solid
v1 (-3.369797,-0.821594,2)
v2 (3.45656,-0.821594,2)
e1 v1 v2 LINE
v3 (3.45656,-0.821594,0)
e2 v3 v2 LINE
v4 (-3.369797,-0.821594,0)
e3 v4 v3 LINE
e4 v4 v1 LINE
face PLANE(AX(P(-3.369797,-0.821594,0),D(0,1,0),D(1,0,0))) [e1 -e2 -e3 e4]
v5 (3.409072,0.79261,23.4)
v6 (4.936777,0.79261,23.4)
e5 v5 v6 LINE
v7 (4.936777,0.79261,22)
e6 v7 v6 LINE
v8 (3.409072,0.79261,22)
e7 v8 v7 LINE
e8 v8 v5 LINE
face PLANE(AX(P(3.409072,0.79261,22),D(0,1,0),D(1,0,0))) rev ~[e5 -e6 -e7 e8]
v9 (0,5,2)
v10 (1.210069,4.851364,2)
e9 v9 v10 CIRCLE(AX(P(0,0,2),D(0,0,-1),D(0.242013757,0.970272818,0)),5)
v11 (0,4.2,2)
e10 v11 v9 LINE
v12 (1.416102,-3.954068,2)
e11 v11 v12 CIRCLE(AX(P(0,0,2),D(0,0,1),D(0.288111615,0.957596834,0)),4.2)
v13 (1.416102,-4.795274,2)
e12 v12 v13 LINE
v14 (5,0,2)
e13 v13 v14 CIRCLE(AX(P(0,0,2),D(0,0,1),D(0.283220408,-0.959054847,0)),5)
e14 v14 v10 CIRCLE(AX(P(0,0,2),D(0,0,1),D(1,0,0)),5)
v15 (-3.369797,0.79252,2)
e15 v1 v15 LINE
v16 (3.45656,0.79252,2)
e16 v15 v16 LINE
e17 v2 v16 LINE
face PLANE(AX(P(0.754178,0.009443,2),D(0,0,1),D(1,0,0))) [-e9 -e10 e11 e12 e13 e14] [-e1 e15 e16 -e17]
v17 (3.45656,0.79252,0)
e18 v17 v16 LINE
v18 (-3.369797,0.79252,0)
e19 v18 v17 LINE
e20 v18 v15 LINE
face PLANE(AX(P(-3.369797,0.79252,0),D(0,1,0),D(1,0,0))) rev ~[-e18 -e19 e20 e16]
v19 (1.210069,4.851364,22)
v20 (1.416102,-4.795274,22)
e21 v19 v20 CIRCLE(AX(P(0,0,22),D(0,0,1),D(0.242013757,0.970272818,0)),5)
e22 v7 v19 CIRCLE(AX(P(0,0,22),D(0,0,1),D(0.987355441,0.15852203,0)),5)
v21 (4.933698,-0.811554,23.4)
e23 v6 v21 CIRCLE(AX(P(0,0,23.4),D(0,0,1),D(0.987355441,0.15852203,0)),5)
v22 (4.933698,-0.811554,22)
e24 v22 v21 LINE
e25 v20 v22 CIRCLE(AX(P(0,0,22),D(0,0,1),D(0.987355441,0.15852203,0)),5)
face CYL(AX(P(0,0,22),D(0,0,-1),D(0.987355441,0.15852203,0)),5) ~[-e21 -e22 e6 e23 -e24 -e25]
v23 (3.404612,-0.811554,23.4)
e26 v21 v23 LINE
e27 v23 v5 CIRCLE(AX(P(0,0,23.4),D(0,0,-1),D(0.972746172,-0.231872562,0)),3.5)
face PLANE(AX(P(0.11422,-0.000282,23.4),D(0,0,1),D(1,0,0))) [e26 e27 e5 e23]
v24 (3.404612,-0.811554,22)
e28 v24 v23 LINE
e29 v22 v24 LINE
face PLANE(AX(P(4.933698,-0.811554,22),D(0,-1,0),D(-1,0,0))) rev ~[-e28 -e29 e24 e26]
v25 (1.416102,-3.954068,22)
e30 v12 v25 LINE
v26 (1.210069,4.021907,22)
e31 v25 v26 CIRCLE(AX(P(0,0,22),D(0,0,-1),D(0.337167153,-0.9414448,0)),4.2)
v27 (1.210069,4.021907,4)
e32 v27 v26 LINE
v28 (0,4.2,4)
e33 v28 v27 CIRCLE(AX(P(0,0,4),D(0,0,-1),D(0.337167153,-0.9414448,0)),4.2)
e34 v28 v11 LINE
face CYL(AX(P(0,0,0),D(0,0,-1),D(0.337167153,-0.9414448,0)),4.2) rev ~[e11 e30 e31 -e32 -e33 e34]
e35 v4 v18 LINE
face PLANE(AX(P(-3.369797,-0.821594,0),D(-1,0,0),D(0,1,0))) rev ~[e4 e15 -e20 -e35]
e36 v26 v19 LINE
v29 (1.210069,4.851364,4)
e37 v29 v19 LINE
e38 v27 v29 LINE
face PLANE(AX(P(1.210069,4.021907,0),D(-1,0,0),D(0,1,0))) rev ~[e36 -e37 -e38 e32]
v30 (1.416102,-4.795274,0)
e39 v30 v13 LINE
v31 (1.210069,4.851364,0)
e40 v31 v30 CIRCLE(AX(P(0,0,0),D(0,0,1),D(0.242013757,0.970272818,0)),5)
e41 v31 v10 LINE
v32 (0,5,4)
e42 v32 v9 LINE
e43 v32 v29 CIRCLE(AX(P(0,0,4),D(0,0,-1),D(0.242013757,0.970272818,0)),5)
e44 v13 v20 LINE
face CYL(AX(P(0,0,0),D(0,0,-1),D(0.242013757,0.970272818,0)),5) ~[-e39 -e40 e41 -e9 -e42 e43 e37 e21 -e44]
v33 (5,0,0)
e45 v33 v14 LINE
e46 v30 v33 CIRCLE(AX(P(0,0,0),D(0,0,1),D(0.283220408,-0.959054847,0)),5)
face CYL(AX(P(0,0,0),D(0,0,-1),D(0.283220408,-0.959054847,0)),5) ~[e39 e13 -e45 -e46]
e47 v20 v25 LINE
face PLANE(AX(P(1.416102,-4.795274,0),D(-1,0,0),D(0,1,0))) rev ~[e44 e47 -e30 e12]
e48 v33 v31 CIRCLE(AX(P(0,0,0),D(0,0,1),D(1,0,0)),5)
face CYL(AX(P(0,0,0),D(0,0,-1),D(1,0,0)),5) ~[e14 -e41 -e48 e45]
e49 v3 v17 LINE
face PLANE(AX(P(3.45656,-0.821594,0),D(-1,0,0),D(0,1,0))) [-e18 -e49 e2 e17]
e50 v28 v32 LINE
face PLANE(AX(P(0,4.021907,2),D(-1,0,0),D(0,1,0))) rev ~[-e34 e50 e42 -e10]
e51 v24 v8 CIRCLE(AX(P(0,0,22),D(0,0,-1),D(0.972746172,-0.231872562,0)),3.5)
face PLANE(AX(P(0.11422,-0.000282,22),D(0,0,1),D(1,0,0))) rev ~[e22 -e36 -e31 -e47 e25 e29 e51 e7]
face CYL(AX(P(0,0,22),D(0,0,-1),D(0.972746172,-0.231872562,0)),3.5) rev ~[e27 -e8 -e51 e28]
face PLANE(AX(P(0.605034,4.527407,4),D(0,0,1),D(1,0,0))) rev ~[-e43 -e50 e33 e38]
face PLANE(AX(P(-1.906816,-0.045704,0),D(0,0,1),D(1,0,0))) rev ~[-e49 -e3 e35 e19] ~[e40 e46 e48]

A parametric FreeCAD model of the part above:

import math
import FreeCAD as App
import Part
import Sketcher
Q = App.Units.Quantity

doc = App.newDocument("Part")
params = doc.addObject("Spreadsheet::Sheet", "Params")
for row, (alias, value) in enumerate([
    ("sketch1_radius", "5 mm"),
    ("sketch1_radius2", "4.2 mm"),
    ("pad1_length", "2 mm"),
    ("sketch2_radius", "5 mm"),
    ("sketch2_radius2", "4.2 mm"),
    ("pad2_length", "22 mm"),
    ("sketch3_radius", "5 mm"),
    ("sketch3_radius2", "3.5 mm"),
    ("pad3_length", "1.4 mm"),
    ("pocket1_length", "2 mm"),
], start=1):
    params.set(f"A{row}", alias)
    params.set(f"B{row}", "=" + value)
    params.setAlias(f"B{row}", alias)

body = doc.addObject("PartDesign::Body", "Body")

# Sketch on XY plane
sketch1 = doc.addObject("Sketcher::SketchObject", "Sketch")
body.addObject(sketch1)
sketch1.AttachmentSupport = (doc.XY_Plane, [""])
sketch1.MapMode = "FlatFace"
sketch1.addGeometry(Part.ArcOfCircle(Part.Circle(App.Vector(0, 0, 0), App.Vector(0, 0, 1), 5), math.radians(-73.547497), math.radians(0)), False)
sketch1.addGeometry(Part.ArcOfCircle(Part.Circle(App.Vector(0, 0, 0), App.Vector(0, 0, 1), 5), math.radians(0), math.radians(75.994576)), False)
sketch1.addGeometry(Part.LineSegment(App.Vector(1.210069, 4.851364, 0), App.Vector(1.210069, 4.021907, 0)), False)
sketch1.addGeometry(Part.ArcOfCircle(Part.Circle(App.Vector(0, 0, 0), App.Vector(0, 0, 1), 4.2), math.radians(73.255065), math.radians(289.704375)), False)
sketch1.addGeometry(Part.LineSegment(App.Vector(1.416102, -3.954068, 0), App.Vector(1.416102, -4.795274, 0)), False)
sketch1.addGeometry(Part.LineSegment(App.Vector(3.45656, -0.821594, 0), App.Vector(-3.369797, -0.821594, 0)), False)
sketch1.addGeometry(Part.LineSegment(App.Vector(-3.369797, -0.821594, 0), App.Vector(-3.369797, 0.79252, 0)), False)
sketch1.addGeometry(Part.LineSegment(App.Vector(-3.369797, 0.79252, 0), App.Vector(3.45656, 0.79252, 0)), False)
sketch1.addGeometry(Part.LineSegment(App.Vector(3.45656, 0.79252, 0), App.Vector(3.45656, -0.821594, 0)), False)
sketch1.addConstraint(Sketcher.Constraint("Tangent", 0, 2, 1, 1))
sketch1.addConstraint(Sketcher.Constraint("Coincident", 1, 2, 2, 1))
sketch1.addConstraint(Sketcher.Constraint("Coincident", 2, 2, 3, 1))
sketch1.addConstraint(Sketcher.Constraint("Coincident", 3, 2, 4, 1))
sketch1.addConstraint(Sketcher.Constraint("Coincident", 4, 2, 0, 1))
sketch1.addConstraint(Sketcher.Constraint("Coincident", 5, 2, 6, 1))
sketch1.addConstraint(Sketcher.Constraint("Coincident", 6, 2, 7, 1))
sketch1.addConstraint(Sketcher.Constraint("Coincident", 7, 2, 8, 1))
sketch1.addConstraint(Sketcher.Constraint("Coincident", 8, 2, 5, 1))
sketch1.addConstraint(Sketcher.Constraint("Vertical", 2))
sketch1.addConstraint(Sketcher.Constraint("Vertical", 4))
sketch1.addConstraint(Sketcher.Constraint("Horizontal", 5))
sketch1.addConstraint(Sketcher.Constraint("Vertical", 6))
sketch1.addConstraint(Sketcher.Constraint("Horizontal", 7))
sketch1.addConstraint(Sketcher.Constraint("Vertical", 8))
sketch1.addConstraint(Sketcher.Constraint("Coincident", 0, 3, -1, 1))
sketch1.addConstraint(Sketcher.Constraint("Coincident", 3, 3, -1, 1))
sketch1.addConstraint(Sketcher.Constraint("Equal", 0, 1))
sketch1.addConstraint(Sketcher.Constraint("PointOnObject", 0, 2, -1))
sketch1.addConstraint(Sketcher.Constraint("Radius", 0, Q("5 mm")))
sketch1.addConstraint(Sketcher.Constraint("Radius", 3, Q("4.2 mm")))
sketch1.addConstraint(Sketcher.Constraint("DistanceX", 5, 2, 3, 2, Q("4.785899 mm")))
sketch1.addConstraint(Sketcher.Constraint("DistanceX", 5, 2, 5, 1, Q("6.826357 mm")))
sketch1.addConstraint(Sketcher.Constraint("DistanceY", 2, 2, 2, 1, Q("0.829457 mm")))
sketch1.addConstraint(Sketcher.Constraint("DistanceY", 4, 2, 4, 1, Q("0.841206 mm")))
sketch1.addConstraint(Sketcher.Constraint("DistanceY", 6, 1, 6, 2, Q("1.614114 mm")))
sketch1.addConstraint(Sketcher.Constraint("DistanceY", -1, 1, 6, 2, Q("0.79252 mm")))
sketch1.setExpression("Constraints[19]", "Params.sketch1_radius")
sketch1.setExpression("Constraints[20]", "Params.sketch1_radius2")
pad1 = doc.addObject("PartDesign::Pad", "Pad")
body.addObject(pad1)
pad1.Profile = sketch1
pad1.setExpression("Length", "Params.pad1_length")

# Sketch on XY plane
sketch2 = doc.addObject("Sketcher::SketchObject", "Sketch001")
body.addObject(sketch2)
sketch2.AttachmentSupport = (doc.XY_Plane, [""])
sketch2.MapMode = "FlatFace"
sketch2.addGeometry(Part.LineSegment(App.Vector(1.210069, 4.021907, 0), App.Vector(1.210069, 4.851364, 0)), False)
sketch2.addGeometry(Part.ArcOfCircle(Part.Circle(App.Vector(0, 0, 0), App.Vector(0, 0, 1), 5), math.radians(75.994576), math.radians(286.452503)), False)
sketch2.addGeometry(Part.LineSegment(App.Vector(1.416102, -4.795274, 0), App.Vector(1.416102, -3.954068, 0)), False)
sketch2.addGeometry(Part.ArcOfCircle(Part.Circle(App.Vector(0, 0, 0), App.Vector(0, 0, 1), 4.2), math.radians(73.255065), math.radians(289.704375)), False)
sketch2.addConstraint(Sketcher.Constraint("Coincident", 0, 2, 1, 1))
sketch2.addConstraint(Sketcher.Constraint("Coincident", 1, 2, 2, 1))
sketch2.addConstraint(Sketcher.Constraint("Coincident", 2, 2, 3, 2))
sketch2.addConstraint(Sketcher.Constraint("Coincident", 3, 1, 0, 1))
sketch2.addConstraint(Sketcher.Constraint("Vertical", 0))
sketch2.addConstraint(Sketcher.Constraint("Vertical", 2))
sketch2.addConstraint(Sketcher.Constraint("Coincident", 1, 3, -1, 1))
sketch2.addConstraint(Sketcher.Constraint("Coincident", 3, 3, -1, 1))
sketch2.addConstraint(Sketcher.Constraint("Radius", 1, Q("5 mm")))
sketch2.addConstraint(Sketcher.Constraint("Radius", 3, Q("4.2 mm")))
sketch2.addConstraint(Sketcher.Constraint("DistanceY", 0, 1, 0, 2, Q("0.829457 mm")))
sketch2.addConstraint(Sketcher.Constraint("DistanceY", 2, 1, 2, 2, Q("0.841206 mm")))
sketch2.setExpression("Constraints[8]", "Params.sketch2_radius")
sketch2.setExpression("Constraints[9]", "Params.sketch2_radius2")
pad2 = doc.addObject("PartDesign::Pad", "Pad001")
body.addObject(pad2)
pad2.Profile = sketch2
pad2.setExpression("Length", "Params.pad2_length")

# Sketch on XY plane
sketch3 = doc.addObject("Sketcher::SketchObject", "Sketch002")
body.addObject(sketch3)
sketch3.AttachmentSupport = (doc.XY_Plane, [""])
sketch3.MapMode = "FlatFace"
sketch3.AttachmentOffset = App.Placement(App.Vector(0, 0, 22), App.Rotation())
sketch3.addGeometry(Part.ArcOfCircle(Part.Circle(App.Vector(0, 0, 0), App.Vector(0, 0, 1), 3.5), math.radians(13.088749), math.radians(346.592658)), False)
sketch3.addGeometry(Part.LineSegment(App.Vector(3.409072, 0.79261, 0), App.Vector(4.936777, 0.79261, 0)), False)
sketch3.addGeometry(Part.ArcOfCircle(Part.Circle(App.Vector(0, 0, 0), App.Vector(0, 0, 1), 5), math.radians(9.12112), math.radians(350.658952)), False)
sketch3.addGeometry(Part.LineSegment(App.Vector(4.933698, -0.811554, 0), App.Vector(3.404612, -0.811554, 0)), False)
sketch3.addConstraint(Sketcher.Constraint("Coincident", 0, 1, 1, 1))
sketch3.addConstraint(Sketcher.Constraint("Coincident", 1, 2, 2, 1))
sketch3.addConstraint(Sketcher.Constraint("Coincident", 2, 2, 3, 1))
sketch3.addConstraint(Sketcher.Constraint("Coincident", 3, 2, 0, 2))
sketch3.addConstraint(Sketcher.Constraint("Horizontal", 1))
sketch3.addConstraint(Sketcher.Constraint("Horizontal", 3))
sketch3.addConstraint(Sketcher.Constraint("Coincident", 0, 3, -1, 1))
sketch3.addConstraint(Sketcher.Constraint("Coincident", 2, 3, -1, 1))
sketch3.addConstraint(Sketcher.Constraint("Radius", 2, Q("5 mm")))
sketch3.addConstraint(Sketcher.Constraint("Radius", 0, Q("3.5 mm")))
sketch3.addConstraint(Sketcher.Constraint("DistanceX", -1, 1, 2, 2, Q("4.933698 mm")))
sketch3.addConstraint(Sketcher.Constraint("DistanceX", 1, 1, 1, 2, Q("1.527706 mm")))
sketch3.setExpression("Constraints[8]", "Params.sketch3_radius")
sketch3.setExpression("Constraints[9]", "Params.sketch3_radius2")
pad3 = doc.addObject("PartDesign::Pad", "Pad002")
body.addObject(pad3)
pad3.Profile = sketch3
pad3.setExpression("Length", "Params.pad3_length")

# Sketch on XY plane
sketch4 = doc.addObject("Sketcher::SketchObject", "Sketch003")
body.addObject(sketch4)
sketch4.AttachmentSupport = (doc.XY_Plane, [""])
sketch4.MapMode = "FlatFace"
sketch4.AttachmentOffset = App.Placement(App.Vector(0, 0, 2), App.Rotation())
sketch4.addGeometry(Part.LineSegment(App.Vector(0, 5.032907, 0), App.Vector(0, 4.021907, 0)), False)
sketch4.addGeometry(Part.LineSegment(App.Vector(0, 4.021907, 0), App.Vector(1.210069, 4.021907, 0)), False)
sketch4.addGeometry(Part.LineSegment(App.Vector(1.210069, 4.021907, 0), App.Vector(1.210069, 5.032907, 0)), False)
sketch4.addGeometry(Part.LineSegment(App.Vector(1.210069, 5.032907, 0), App.Vector(0, 5.032907, 0)), False)
sketch4.addConstraint(Sketcher.Constraint("Coincident", 0, 2, 1, 1))
sketch4.addConstraint(Sketcher.Constraint("Coincident", 1, 2, 2, 1))
sketch4.addConstraint(Sketcher.Constraint("Coincident", 2, 2, 3, 1))
sketch4.addConstraint(Sketcher.Constraint("Coincident", 3, 2, 0, 1))
sketch4.addConstraint(Sketcher.Constraint("Vertical", 0))
sketch4.addConstraint(Sketcher.Constraint("Horizontal", 1))
sketch4.addConstraint(Sketcher.Constraint("Vertical", 2))
sketch4.addConstraint(Sketcher.Constraint("Horizontal", 3))
sketch4.addConstraint(Sketcher.Constraint("PointOnObject", 0, 2, -2))
sketch4.addConstraint(Sketcher.Constraint("DistanceY", 0, 2, 0, 1, Q("1.011001 mm")))
sketch4.addConstraint(Sketcher.Constraint("DistanceX", 1, 1, 1, 2, Q("1.210069 mm")))
sketch4.addConstraint(Sketcher.Constraint("DistanceY", -1, 1, 0, 2, Q("4.021907 mm")))
pocket1 = doc.addObject("PartDesign::Pocket", "Pocket")
body.addObject(pocket1)
pocket1.Profile = sketch4
pocket1.setExpression("Length", "Params.pocket1_length")
pocket1.Reversed = True

doc.recompute()
